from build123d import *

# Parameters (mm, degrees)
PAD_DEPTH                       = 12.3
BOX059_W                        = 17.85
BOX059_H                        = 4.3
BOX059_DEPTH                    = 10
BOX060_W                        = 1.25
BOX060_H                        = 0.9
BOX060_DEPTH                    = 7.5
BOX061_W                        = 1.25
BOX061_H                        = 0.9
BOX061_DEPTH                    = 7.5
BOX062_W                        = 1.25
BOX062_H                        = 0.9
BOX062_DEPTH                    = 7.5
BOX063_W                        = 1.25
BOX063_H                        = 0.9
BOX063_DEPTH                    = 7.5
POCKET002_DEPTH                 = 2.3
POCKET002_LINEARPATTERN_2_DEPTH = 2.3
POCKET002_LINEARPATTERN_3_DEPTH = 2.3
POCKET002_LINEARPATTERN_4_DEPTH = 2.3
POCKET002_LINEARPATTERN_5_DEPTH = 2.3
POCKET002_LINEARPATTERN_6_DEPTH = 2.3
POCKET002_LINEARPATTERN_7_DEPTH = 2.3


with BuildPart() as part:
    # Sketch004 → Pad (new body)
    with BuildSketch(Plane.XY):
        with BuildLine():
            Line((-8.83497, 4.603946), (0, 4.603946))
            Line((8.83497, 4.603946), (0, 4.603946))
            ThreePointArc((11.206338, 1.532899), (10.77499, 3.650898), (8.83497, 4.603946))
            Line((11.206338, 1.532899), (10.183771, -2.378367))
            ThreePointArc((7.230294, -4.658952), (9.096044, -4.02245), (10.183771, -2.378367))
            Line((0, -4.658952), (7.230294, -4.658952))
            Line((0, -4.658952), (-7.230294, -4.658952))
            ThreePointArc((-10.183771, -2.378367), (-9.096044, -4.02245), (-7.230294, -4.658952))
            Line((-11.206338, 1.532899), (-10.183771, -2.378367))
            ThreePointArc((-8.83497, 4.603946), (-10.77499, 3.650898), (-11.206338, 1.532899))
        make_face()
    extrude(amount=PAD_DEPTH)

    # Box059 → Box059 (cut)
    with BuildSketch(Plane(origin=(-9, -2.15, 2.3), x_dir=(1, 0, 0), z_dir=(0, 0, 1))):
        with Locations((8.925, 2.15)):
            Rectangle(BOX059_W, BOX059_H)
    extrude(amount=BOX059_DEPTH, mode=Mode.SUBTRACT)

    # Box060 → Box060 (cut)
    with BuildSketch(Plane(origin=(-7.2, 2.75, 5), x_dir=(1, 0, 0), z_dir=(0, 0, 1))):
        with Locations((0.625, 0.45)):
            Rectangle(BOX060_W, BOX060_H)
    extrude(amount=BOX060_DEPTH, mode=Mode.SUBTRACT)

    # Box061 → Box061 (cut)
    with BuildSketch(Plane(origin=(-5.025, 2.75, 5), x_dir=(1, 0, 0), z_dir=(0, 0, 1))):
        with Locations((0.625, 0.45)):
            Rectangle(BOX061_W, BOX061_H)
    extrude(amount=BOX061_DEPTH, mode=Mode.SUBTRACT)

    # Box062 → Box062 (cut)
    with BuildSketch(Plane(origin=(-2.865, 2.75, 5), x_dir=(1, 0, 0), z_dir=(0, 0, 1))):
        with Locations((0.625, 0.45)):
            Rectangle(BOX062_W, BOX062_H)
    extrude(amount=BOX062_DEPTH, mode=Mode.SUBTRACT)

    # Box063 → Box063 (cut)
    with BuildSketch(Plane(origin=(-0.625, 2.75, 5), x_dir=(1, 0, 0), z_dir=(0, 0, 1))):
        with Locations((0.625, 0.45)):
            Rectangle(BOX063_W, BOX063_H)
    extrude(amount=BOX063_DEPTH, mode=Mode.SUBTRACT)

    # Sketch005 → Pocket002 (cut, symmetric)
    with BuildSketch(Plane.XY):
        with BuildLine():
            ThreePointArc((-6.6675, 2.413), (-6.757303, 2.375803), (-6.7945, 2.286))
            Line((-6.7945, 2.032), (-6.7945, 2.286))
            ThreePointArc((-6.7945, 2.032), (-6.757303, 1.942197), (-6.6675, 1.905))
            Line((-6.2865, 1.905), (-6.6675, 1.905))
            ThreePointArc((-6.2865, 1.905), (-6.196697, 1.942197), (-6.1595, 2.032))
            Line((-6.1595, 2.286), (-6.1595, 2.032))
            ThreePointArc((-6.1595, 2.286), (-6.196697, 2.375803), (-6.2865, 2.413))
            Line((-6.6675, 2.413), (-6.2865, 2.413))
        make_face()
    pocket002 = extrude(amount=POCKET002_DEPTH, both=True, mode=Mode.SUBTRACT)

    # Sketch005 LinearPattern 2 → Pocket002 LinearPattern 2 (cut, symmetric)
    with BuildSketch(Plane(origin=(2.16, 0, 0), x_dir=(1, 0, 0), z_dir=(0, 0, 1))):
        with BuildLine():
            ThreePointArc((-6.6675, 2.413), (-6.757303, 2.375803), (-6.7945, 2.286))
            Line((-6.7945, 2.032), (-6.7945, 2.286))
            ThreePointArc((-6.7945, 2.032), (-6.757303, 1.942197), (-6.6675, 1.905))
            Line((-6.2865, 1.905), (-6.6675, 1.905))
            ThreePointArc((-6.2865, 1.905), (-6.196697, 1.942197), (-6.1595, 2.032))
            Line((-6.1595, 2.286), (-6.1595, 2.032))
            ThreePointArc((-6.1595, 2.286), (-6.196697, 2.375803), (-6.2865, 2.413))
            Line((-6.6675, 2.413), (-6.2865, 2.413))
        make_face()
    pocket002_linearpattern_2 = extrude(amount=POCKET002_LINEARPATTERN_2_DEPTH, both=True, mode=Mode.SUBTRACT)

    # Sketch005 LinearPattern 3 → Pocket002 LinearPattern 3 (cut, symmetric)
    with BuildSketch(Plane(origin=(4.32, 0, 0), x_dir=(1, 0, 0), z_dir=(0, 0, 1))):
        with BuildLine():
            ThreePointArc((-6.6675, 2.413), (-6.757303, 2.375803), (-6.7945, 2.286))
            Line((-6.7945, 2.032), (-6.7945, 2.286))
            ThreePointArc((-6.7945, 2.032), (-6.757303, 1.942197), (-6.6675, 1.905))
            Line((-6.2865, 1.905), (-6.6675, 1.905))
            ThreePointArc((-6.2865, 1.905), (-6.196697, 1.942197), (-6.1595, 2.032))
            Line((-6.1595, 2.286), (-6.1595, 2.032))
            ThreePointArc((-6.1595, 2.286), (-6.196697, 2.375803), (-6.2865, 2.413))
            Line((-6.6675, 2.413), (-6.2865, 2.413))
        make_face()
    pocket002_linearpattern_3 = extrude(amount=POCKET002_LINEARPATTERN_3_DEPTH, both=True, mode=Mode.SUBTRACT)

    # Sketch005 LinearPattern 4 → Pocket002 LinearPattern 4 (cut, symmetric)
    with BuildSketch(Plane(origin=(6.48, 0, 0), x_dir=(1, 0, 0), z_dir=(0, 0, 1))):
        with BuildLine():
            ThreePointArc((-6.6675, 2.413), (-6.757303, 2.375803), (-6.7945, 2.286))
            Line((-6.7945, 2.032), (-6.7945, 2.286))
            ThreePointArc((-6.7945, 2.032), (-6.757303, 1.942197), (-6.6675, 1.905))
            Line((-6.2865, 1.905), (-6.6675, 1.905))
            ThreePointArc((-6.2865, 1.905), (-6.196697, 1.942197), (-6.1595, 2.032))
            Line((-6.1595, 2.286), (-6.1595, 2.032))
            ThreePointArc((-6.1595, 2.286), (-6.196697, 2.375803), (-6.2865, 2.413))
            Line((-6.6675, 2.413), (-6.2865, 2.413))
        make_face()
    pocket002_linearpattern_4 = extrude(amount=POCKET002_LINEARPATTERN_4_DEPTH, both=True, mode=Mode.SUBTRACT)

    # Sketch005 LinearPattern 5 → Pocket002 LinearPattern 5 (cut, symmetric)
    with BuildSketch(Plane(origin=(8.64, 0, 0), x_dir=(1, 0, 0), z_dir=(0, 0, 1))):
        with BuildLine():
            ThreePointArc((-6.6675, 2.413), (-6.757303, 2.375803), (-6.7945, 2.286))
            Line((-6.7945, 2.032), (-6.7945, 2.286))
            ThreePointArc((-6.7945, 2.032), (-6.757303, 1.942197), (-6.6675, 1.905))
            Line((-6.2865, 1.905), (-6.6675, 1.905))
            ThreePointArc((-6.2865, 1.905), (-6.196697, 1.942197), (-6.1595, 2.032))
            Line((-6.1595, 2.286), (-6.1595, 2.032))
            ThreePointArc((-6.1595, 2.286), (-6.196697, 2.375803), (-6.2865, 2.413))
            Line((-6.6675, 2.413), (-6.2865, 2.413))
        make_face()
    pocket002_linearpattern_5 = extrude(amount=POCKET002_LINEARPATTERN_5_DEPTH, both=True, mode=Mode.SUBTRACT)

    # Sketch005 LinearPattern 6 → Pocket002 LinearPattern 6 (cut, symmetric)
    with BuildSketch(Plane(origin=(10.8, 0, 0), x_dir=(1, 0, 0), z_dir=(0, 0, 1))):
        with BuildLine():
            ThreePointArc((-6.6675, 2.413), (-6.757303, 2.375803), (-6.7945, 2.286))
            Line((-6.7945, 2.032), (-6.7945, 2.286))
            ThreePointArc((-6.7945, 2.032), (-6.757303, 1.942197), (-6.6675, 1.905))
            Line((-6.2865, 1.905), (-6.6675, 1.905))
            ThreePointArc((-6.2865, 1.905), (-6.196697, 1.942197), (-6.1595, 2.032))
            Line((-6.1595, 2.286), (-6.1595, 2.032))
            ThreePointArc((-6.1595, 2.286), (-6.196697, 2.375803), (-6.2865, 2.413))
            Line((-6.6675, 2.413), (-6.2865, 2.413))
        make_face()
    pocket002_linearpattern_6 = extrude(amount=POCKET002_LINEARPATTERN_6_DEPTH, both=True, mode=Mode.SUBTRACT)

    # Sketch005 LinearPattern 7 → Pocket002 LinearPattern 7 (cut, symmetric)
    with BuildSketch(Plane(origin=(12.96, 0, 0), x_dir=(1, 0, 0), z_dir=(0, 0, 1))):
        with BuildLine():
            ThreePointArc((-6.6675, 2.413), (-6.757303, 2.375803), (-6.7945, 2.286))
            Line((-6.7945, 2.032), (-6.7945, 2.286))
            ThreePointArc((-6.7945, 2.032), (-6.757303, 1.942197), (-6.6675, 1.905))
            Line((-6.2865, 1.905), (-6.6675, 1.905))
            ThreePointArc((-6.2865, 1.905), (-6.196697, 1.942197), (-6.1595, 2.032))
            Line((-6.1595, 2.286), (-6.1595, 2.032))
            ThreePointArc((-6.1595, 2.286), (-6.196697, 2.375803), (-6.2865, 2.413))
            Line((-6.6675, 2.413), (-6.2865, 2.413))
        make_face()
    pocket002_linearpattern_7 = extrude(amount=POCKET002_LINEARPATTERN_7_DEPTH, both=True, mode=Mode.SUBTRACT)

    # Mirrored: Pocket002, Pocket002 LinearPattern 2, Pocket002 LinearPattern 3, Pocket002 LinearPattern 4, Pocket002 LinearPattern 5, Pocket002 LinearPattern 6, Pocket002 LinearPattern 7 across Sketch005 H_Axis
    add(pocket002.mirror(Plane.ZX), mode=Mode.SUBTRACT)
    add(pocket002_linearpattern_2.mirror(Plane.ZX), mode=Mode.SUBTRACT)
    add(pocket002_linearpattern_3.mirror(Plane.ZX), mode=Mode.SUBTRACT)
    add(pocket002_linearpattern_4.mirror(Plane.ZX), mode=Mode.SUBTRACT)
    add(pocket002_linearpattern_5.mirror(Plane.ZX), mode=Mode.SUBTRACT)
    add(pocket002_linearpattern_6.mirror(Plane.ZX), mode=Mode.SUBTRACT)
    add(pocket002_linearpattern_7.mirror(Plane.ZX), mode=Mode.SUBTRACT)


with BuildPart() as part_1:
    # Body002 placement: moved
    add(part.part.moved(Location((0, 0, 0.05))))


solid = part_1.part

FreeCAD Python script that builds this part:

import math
import FreeCAD as App
import Part
import Sketcher


def add_polygon(sketch, points):
    """Adds a closed chain of lines whose ends are joined by coincident constraints."""
    first, n = sketch.GeometryCount, len(points)
    for a, b in zip(points, points[1:] + points[:1]):
        sketch.addGeometry(Part.LineSegment(App.Vector(*a, 0), App.Vector(*b, 0)), False)
    for i in range(n):
        sketch.addConstraint(Sketcher.Constraint("Coincident", first + i, 2, first + (i + 1) % n, 1))

doc = App.newDocument("Part")
body = doc.addObject("PartDesign::Body", "Body")

# Sketch on XY plane
sketch1 = body.newObject("Sketcher::SketchObject", "Sketch")
sketch1.AttachmentSupport = (doc.getObject("XY_Plane"), [""])
sketch1.MapMode = "FlatFace"
sketch1.addGeometry(Part.LineSegment(App.Vector(8.8, 4.6, 0), App.Vector(-8.8, 4.6, 0)), False)
sketch1.addGeometry(Part.ArcOfCircle(Part.Circle(App.Vector(-8.8, 2.2, 0), App.Vector(0, 0, 1), 2.5), math.radians(90), math.radians(195)), False)
sketch1.addGeometry(Part.LineSegment(App.Vector(-11.2, 1.5, 0), App.Vector(-10.2, -2.4, 0)), False)
sketch1.addGeometry(Part.ArcOfCircle(Part.Circle(App.Vector(-7.2, -1.6, 0), App.Vector(0, 0, 1), 3.1), math.radians(-165), math.radians(-90)), False)
sketch1.addGeometry(Part.LineSegment(App.Vector(-7.2, -4.7, 0), App.Vector(7.2, -4.7, 0)), False)
sketch1.addGeometry(Part.ArcOfCircle(Part.Circle(App.Vector(7.2, -1.6, 0), App.Vector(0, 0, 1), 3.1), math.radians(-90), math.radians(-15)), False)
sketch1.addGeometry(Part.LineSegment(App.Vector(10.2, -2.4, 0), App.Vector(11.2, 1.5, 0)), False)
sketch1.addGeometry(Part.ArcOfCircle(Part.Circle(App.Vector(8.8, 2.2, 0), App.Vector(0, 0, 1), 2.5), math.radians(-15), math.radians(90)), False)
sketch1.addConstraint(Sketcher.Constraint("Tangent", 0, 2, 1, 1))
sketch1.addConstraint(Sketcher.Constraint("Tangent", 1, 2, 2, 1))
sketch1.addConstraint(Sketcher.Constraint("Tangent", 2, 2, 3, 1))
sketch1.addConstraint(Sketcher.Constraint("Tangent", 3, 2, 4, 1))
sketch1.addConstraint(Sketcher.Constraint("Tangent", 4, 2, 5, 1))
sketch1.addConstraint(Sketcher.Constraint("Tangent", 5, 2, 6, 1))
sketch1.addConstraint(Sketcher.Constraint("Tangent", 6, 2, 7, 1))
sketch1.addConstraint(Sketcher.Constraint("Tangent", 7, 2, 0, 1))
sketch1.addConstraint(Sketcher.Constraint("Horizontal", 0))
sketch1.addConstraint(Sketcher.Constraint("Horizontal", 4))
sketch1.addConstraint(Sketcher.Constraint("Equal", 3, 5))
sketch1.addConstraint(Sketcher.Constraint("Equal", 1, 7))
sketch1.addConstraint(Sketcher.Constraint("Symmetric", 2, 2, 5, 2, -2))
sketch1.addConstraint(Sketcher.Constraint("Radius", 1, 2.451072))
sketch1.addConstraint(Sketcher.Constraint("Radius", 3, 3.052746))
sketch1.addConstraint(Sketcher.Constraint("DistanceX", 0, 2, 0, 1, 17.66994))
sketch1.addConstraint(Sketcher.Constraint("DistanceY", -1, 1, 1, 2, 1.532899))
sketch1.addConstraint(Sketcher.Constraint("DistanceX", 2, 2, 1, 3, 1.348801))
sketch1.addConstraint(Sketcher.Constraint("DistanceX", 4, 1, 4, 2, 14.460588))
pad1 = body.newObject("PartDesign::Pad", "Pad")
pad1.Profile = sketch1
pad1.Length = 12.3

# Sketch on XY plane
sketch2 = body.newObject("Sketcher::SketchObject", "Sketch001")
sketch2.AttachmentSupport = (doc.getObject("XY_Plane"), [""])
sketch2.MapMode = "FlatFace"
sketch2.AttachmentOffset = App.Placement(App.Vector(0, 0, 2.3), App.Rotation())
add_polygon(sketch2, [(-9, 2.1), (-9, -2.1), (8.8, -2.1), (8.8, 2.1)])  # lines 0-3
sketch2.addConstraint(Sketcher.Constraint("Vertical", 0))
sketch2.addConstraint(Sketcher.Constraint("Horizontal", 1))
sketch2.addConstraint(Sketcher.Constraint("Vertical", 2))
sketch2.addConstraint(Sketcher.Constraint("Horizontal", 3))
sketch2.addConstraint(Sketcher.Constraint("DistanceY", 0, 2, 0, 1, 4.3))
sketch2.addConstraint(Sketcher.Constraint("DistanceX", 0, 2, -1, 1, 9.0))
sketch2.addConstraint(Sketcher.Constraint("DistanceX", 1, 1, 1, 2, 17.85))
sketch2.addConstraint(Sketcher.Constraint("DistanceY", 0, 2, -1, 1, 2.15))
pocket1 = body.newObject("PartDesign::Pocket", "Pocket")
pocket1.Profile = sketch2
pocket1.Length = 10
pocket1.Reversed = True

# Sketch on XY plane
sketch3 = body.newObject("Sketcher::SketchObject", "Sketch002")
sketch3.AttachmentSupport = (doc.getObject("XY_Plane"), [""])
sketch3.MapMode = "FlatFace"
sketch3.AttachmentOffset = App.Placement(App.Vector(0, 0, 5), App.Rotation())
add_polygon(sketch3, [(-7.2, 3.6), (-7.2, 2.8), (-6, 2.8), (-6, 3.6)])  # lines 0-3
sketch3.addConstraint(Sketcher.Constraint("Vertical", 0))
sketch3.addConstraint(Sketcher.Constraint("Horizontal", 1))
sketch3.addConstraint(Sketcher.Constraint("Vertical", 2))
sketch3.addConstraint(Sketcher.Constraint("Horizontal", 3))
sketch3.addConstraint(Sketcher.Constraint("DistanceY", 0, 2, 0, 1, 0.9))
sketch3.addConstraint(Sketcher.Constraint("DistanceX", 1, 1, 1, 2, 1.25))
sketch3.addConstraint(Sketcher.Constraint("DistanceX", 0, 2, -1, 1, 7.2))
sketch3.addConstraint(Sketcher.Constraint("DistanceY", -1, 1, 0, 2, 2.75))
pocket2 = body.newObject("PartDesign::Pocket", "Pocket001")
pocket2.Profile = sketch3
pocket2.Length = 7.5
pocket2.Reversed = True

# Sketch on XY plane
sketch4 = body.newObject("Sketcher::SketchObject", "Sketch003")
sketch4.AttachmentSupport = (doc.getObject("XY_Plane"), [""])
sketch4.MapMode = "FlatFace"
sketch4.AttachmentOffset = App.Placement(App.Vector(0, 0, 5), App.Rotation())
add_polygon(sketch4, [(-5, 3.6), (-5, 2.8), (-3.8, 2.8), (-3.8, 3.6)])  # lines 0-3
sketch4.addConstraint(Sketcher.Constraint("Vertical", 0))
sketch4.addConstraint(Sketcher.Constraint("Horizontal", 1))
sketch4.addConstraint(Sketcher.Constraint("Vertical", 2))
sketch4.addConstraint(Sketcher.Constraint("Horizontal", 3))
sketch4.addConstraint(Sketcher.Constraint("DistanceY", 0, 2, 0, 1, 0.9))
sketch4.addConstraint(Sketcher.Constraint("DistanceX", 1, 1, 1, 2, 1.25))
sketch4.addConstraint(Sketcher.Constraint("DistanceY", -1, 1, 0, 2, 2.75))
sketch4.addConstraint(Sketcher.Constraint("DistanceX", 0, 2, -1, 1, 5.025))
pocket3 = body.newObject("PartDesign::Pocket", "Pocket002")
pocket3.Profile = sketch4
pocket3.Length = 7.5
pocket3.Reversed = True

# Sketch on XY plane
sketch5 = body.newObject("Sketcher::SketchObject", "Sketch004")
sketch5.AttachmentSupport = (doc.getObject("XY_Plane"), [""])
sketch5.MapMode = "FlatFace"
sketch5.AttachmentOffset = App.Placement(App.Vector(0, 0, 5), App.Rotation())
add_polygon(sketch5, [(-2.9, 3.6), (-2.9, 2.8), (-1.6, 2.8), (-1.6, 3.6)])  # lines 0-3
sketch5.addConstraint(Sketcher.Constraint("Vertical", 0))
sketch5.addConstraint(Sketcher.Constraint("Horizontal", 1))
sketch5.addConstraint(Sketcher.Constraint("Vertical", 2))
sketch5.addConstraint(Sketcher.Constraint("Horizontal", 3))
sketch5.addConstraint(Sketcher.Constraint("DistanceY", 0, 2, 0, 1, 0.9))
sketch5.addConstraint(Sketcher.Constraint("DistanceX", 1, 1, 1, 2, 1.25))
sketch5.addConstraint(Sketcher.Constraint("DistanceY", -1, 1, 0, 2, 2.75))
sketch5.addConstraint(Sketcher.Constraint("DistanceX", 0, 2, -1, 1, 2.865))
pocket4 = body.newObject("PartDesign::Pocket", "Pocket003")
pocket4.Profile = sketch5
pocket4.Length = 7.5
pocket4.Reversed = True

# Sketch on XY plane
sketch6 = body.newObject("Sketcher::SketchObject", "Sketch005")
sketch6.AttachmentSupport = (doc.getObject("XY_Plane"), [""])
sketch6.MapMode = "FlatFace"
sketch6.AttachmentOffset = App.Placement(App.Vector(0, 0, 5), App.Rotation())
add_polygon(sketch6, [(-0.6, 3.6), (-0.6, 2.8), (0.6, 2.8), (0.6, 3.6)])  # lines 0-3
sketch6.addConstraint(Sketcher.Constraint("Vertical", 0))
sketch6.addConstraint(Sketcher.Constraint("Horizontal", 1))
sketch6.addConstraint(Sketcher.Constraint("Vertical", 2))
sketch6.addConstraint(Sketcher.Constraint("Horizontal", 3))
sketch6.addConstraint(Sketcher.Constraint("DistanceY", 0, 2, 0, 1, 0.9))
sketch6.addConstraint(Sketcher.Constraint("DistanceX", 1, 1, 1, 2, 1.25))
sketch6.addConstraint(Sketcher.Constraint("DistanceY", -1, 1, 0, 2, 2.75))
sketch6.addConstraint(Sketcher.Constraint("DistanceX", 0, 2, -1, 1, 0.625))
pocket5 = body.newObject("PartDesign::Pocket", "Pocket004")
pocket5.Profile = sketch6
pocket5.Length = 7.5
pocket5.Reversed = True

# Sketch on XY plane
sketch7 = body.newObject("Sketcher::SketchObject", "Sketch006")
sketch7.AttachmentSupport = (doc.getObject("XY_Plane"), [""])
sketch7.MapMode = "FlatFace"
sketch7.addGeometry(Part.ArcOfCircle(Part.Circle(App.Vector(-6.67, 2.29, 0), App.Vector(0, 0, 1), 0.13), math.radians(90), math.radians(180)), False)
sketch7.addGeometry(Part.LineSegment(App.Vector(-6.79, 2.29, 0), App.Vector(-6.79, 2.03, 0)), False)
sketch7.addGeometry(Part.ArcOfCircle(Part.Circle(App.Vector(-6.67, 2.03, 0), App.Vector(0, 0, 1), 0.13), math.radians(180), math.radians(270)), False)
sketch7.addGeometry(Part.LineSegment(App.Vector(-6.67, 1.91, 0), App.Vector(-6.29, 1.91, 0)), False)
sketch7.addGeometry(Part.ArcOfCircle(Part.Circle(App.Vector(-6.29, 2.03, 0), App.Vector(0, 0, 1), 0.13), math.radians(-90), math.radians(0)), False)
sketch7.addGeometry(Part.LineSegment(App.Vector(-6.16, 2.03, 0), App.Vector(-6.16, 2.29, 0)), False)
sketch7.addGeometry(Part.ArcOfCircle(Part.Circle(App.Vector(-6.29, 2.29, 0), App.Vector(0, 0, 1), 0.13), math.radians(0), math.radians(90)), False)
sketch7.addGeometry(Part.LineSegment(App.Vector(-6.29, 2.41, 0), App.Vector(-6.67, 2.41, 0)), False)
sketch7.addConstraint(Sketcher.Constraint("Coincident", 0, 2, 1, 1))
sketch7.addConstraint(Sketcher.Constraint("Coincident", 1, 2, 2, 1))
sketch7.addConstraint(Sketcher.Constraint("Coincident", 2, 2, 3, 1))
sketch7.addConstraint(Sketcher.Constraint("Coincident", 3, 2, 4, 1))
sketch7.addConstraint(Sketcher.Constraint("Coincident", 4, 2, 5, 1))
sketch7.addConstraint(Sketcher.Constraint("Coincident", 5, 2, 6, 1))
sketch7.addConstraint(Sketcher.Constraint("Coincident", 6, 2, 7, 1))
sketch7.addConstraint(Sketcher.Constraint("Coincident", 7, 2, 0, 1))
sketch7.addConstraint(Sketcher.Constraint("Vertical", 1))
sketch7.addConstraint(Sketcher.Constraint("Horizontal", 3))
sketch7.addConstraint(Sketcher.Constraint("Vertical", 5))
sketch7.addConstraint(Sketcher.Constraint("Horizontal", 7))
sketch7.addConstraint(Sketcher.Constraint("Equal", 0, 2))
sketch7.addConstraint(Sketcher.Constraint("Equal", 2, 4))
sketch7.addConstraint(Sketcher.Constraint("Equal", 4, 6))
sketch7.addConstraint(Sketcher.Constraint("Horizontal", 6, 3, 0, 2))
sketch7.addConstraint(Sketcher.Constraint("Horizontal", 4, 3, 1, 2))
sketch7.addConstraint(Sketcher.Constraint("Horizontal", 1, 2, 4, 2))
sketch7.addConstraint(Sketcher.Constraint("Horizontal", 0, 2, 5, 2))
sketch7.addConstraint(Sketcher.Constraint("Vertical", 0, 3, 2, 2))
sketch7.addConstraint(Sketcher.Constraint("Vertical", 6, 3, 3, 2))
sketch7.addConstraint(Sketcher.Constraint("Vertical", 3, 2, 6, 2))
sketch7.addConstraint(Sketcher.Constraint("Vertical", 2, 2, 7, 2))
sketch7.addConstraint(Sketcher.Constraint("Radius", 0, 0.126999))
sketch7.addConstraint(Sketcher.Constraint("DistanceX", 3, 1, 3, 2, 0.381))
sketch7.addConstraint(Sketcher.Constraint("DistanceY", 1, 2, 1, 1, 0.254))
sketch7.addConstraint(Sketcher.Constraint("DistanceY", -1, 1, 0, 3, 2.286001))
sketch7.addConstraint(Sketcher.Constraint("DistanceX", 0, 3, -1, 1, 6.667501))
pocket6 = body.newObject("PartDesign::Pocket", "Pocket005")
pocket6.Profile = sketch7
pocket6.Length = 4.6
pocket6.Midplane = True

# Sketch on XY plane
sketch8 = body.newObject("Sketcher::SketchObject", "Sketch007")
sketch8.AttachmentSupport = (doc.getObject("XY_Plane"), [""])
sketch8.MapMode = "FlatFace"
sketch8.addGeometry(Part.ArcOfCircle(Part.Circle(App.Vector(-4.51, 2.29, 0), App.Vector(0, 0, 1), 0.13), math.radians(90), math.radians(180)), False)
sketch8.addGeometry(Part.LineSegment(App.Vector(-4.63, 2.29, 0), App.Vector(-4.63, 2.03, 0)), False)
sketch8.addGeometry(Part.ArcOfCircle(Part.Circle(App.Vector(-4.51, 2.03, 0), App.Vector(0, 0, 1), 0.13), math.radians(180), math.radians(270)), False)
sketch8.addGeometry(Part.LineSegment(App.Vector(-4.51, 1.91, 0), App.Vector(-4.13, 1.91, 0)), False)
sketch8.addGeometry(Part.ArcOfCircle(Part.Circle(App.Vector(-4.13, 2.03, 0), App.Vector(0, 0, 1), 0.13), math.radians(-90), math.radians(0)), False)
sketch8.addGeometry(Part.LineSegment(App.Vector(-4, 2.03, 0), App.Vector(-4, 2.29, 0)), False)
sketch8.addGeometry(Part.ArcOfCircle(Part.Circle(App.Vector(-4.13, 2.29, 0), App.Vector(0, 0, 1), 0.13), math.radians(0), math.radians(90)), False)
sketch8.addGeometry(Part.LineSegment(App.Vector(-4.13, 2.41, 0), App.Vector(-4.51, 2.41, 0)), False)
sketch8.addConstraint(Sketcher.Constraint("Coincident", 0, 2, 1, 1))
sketch8.addConstraint(Sketcher.Constraint("Coincident", 1, 2, 2, 1))
sketch8.addConstraint(Sketcher.Constraint("Coincident", 2, 2, 3, 1))
sketch8.addConstraint(Sketcher.Constraint("Coincident", 3, 2, 4, 1))
sketch8.addConstraint(Sketcher.Constraint("Coincident", 4, 2, 5, 1))
sketch8.addConstraint(Sketcher.Constraint("Coincident", 5, 2, 6, 1))
sketch8.addConstraint(Sketcher.Constraint("Coincident", 6, 2, 7, 1))
sketch8.addConstraint(Sketcher.Constraint("Coincident", 7, 2, 0, 1))
sketch8.addConstraint(Sketcher.Constraint("Vertical", 1))
sketch8.addConstraint(Sketcher.Constraint("Horizontal", 3))
sketch8.addConstraint(Sketcher.Constraint("Vertical", 5))
sketch8.addConstraint(Sketcher.Constraint("Horizontal", 7))
sketch8.addConstraint(Sketcher.Constraint("Equal", 0, 2))
sketch8.addConstraint(Sketcher.Constraint("Equal", 2, 4))
sketch8.addConstraint(Sketcher.Constraint("Equal", 4, 6))
sketch8.addConstraint(Sketcher.Constraint("Horizontal", 6, 3, 0, 2))
sketch8.addConstraint(Sketcher.Constraint("Horizontal", 4, 3, 1, 2))
sketch8.addConstraint(Sketcher.Constraint("Horizontal", 1, 2, 4, 2))
sketch8.addConstraint(Sketcher.Constraint("Horizontal", 0, 2, 5, 2))
sketch8.addConstraint(Sketcher.Constraint("Vertical", 0, 3, 2, 2))
sketch8.addConstraint(Sketcher.Constraint("Vertical", 6, 3, 3, 2))
sketch8.addConstraint(Sketcher.Constraint("Vertical", 3, 2, 6, 2))
sketch8.addConstraint(Sketcher.Constraint("Vertical", 2, 2, 7, 2))
sketch8.addConstraint(Sketcher.Constraint("Radius", 0, 0.126999))
sketch8.addConstraint(Sketcher.Constraint("DistanceX", 3, 1, 3, 2, 0.381))
sketch8.addConstraint(Sketcher.Constraint("DistanceY", 1, 2, 1, 1, 0.254))
sketch8.addConstraint(Sketcher.Constraint("DistanceY", -1, 1, 0, 3, 2.286001))
sketch8.addConstraint(Sketcher.Constraint("DistanceX", 0, 3, -1, 1, 4.507501))
pocket7 = body.newObject("PartDesign::Pocket", "Pocket006")
pocket7.Profile = sketch8
pocket7.Length = 4.6
pocket7.Midplane = True

# Sketch on XY plane
sketch9 = body.newObject("Sketcher::SketchObject", "Sketch008")
sketch9.AttachmentSupport = (doc.getObject("XY_Plane"), [""])
sketch9.MapMode = "FlatFace"
sketch9.addGeometry(Part.ArcOfCircle(Part.Circle(App.Vector(-2.35, 2.29, 0), App.Vector(0, 0, 1), 0.13), math.radians(90), math.radians(180)), False)
sketch9.addGeometry(Part.LineSegment(App.Vector(-2.47, 2.29, 0), App.Vector(-2.47, 2.03, 0)), False)
sketch9.addGeometry(Part.ArcOfCircle(Part.Circle(App.Vector(-2.35, 2.03, 0), App.Vector(0, 0, 1), 0.13), math.radians(180), math.radians(270)), False)
sketch9.addGeometry(Part.LineSegment(App.Vector(-2.35, 1.91, 0), App.Vector(-1.97, 1.91, 0)), False)
sketch9.addGeometry(Part.ArcOfCircle(Part.Circle(App.Vector(-1.97, 2.03, 0), App.Vector(0, 0, 1), 0.13), math.radians(-90), math.radians(0)), False)
sketch9.addGeometry(Part.LineSegment(App.Vector(-1.84, 2.03, 0), App.Vector(-1.84, 2.29, 0)), False)
sketch9.addGeometry(Part.ArcOfCircle(Part.Circle(App.Vector(-1.97, 2.29, 0), App.Vector(0, 0, 1), 0.13), math.radians(0), math.radians(90)), False)
sketch9.addGeometry(Part.LineSegment(App.Vector(-1.97, 2.41, 0), App.Vector(-2.35, 2.41, 0)), False)
sketch9.addConstraint(Sketcher.Constraint("Coincident", 0, 2, 1, 1))
sketch9.addConstraint(Sketcher.Constraint("Coincident", 1, 2, 2, 1))
sketch9.addConstraint(Sketcher.Constraint("Coincident", 2, 2, 3, 1))
sketch9.addConstraint(Sketcher.Constraint("Coincident", 3, 2, 4, 1))
sketch9.addConstraint(Sketcher.Constraint("Coincident", 4, 2, 5, 1))
sketch9.addConstraint(Sketcher.Constraint("Coincident", 5, 2, 6, 1))
sketch9.addConstraint(Sketcher.Constraint("Coincident", 6, 2, 7, 1))
sketch9.addConstraint(Sketcher.Constraint("Coincident", 7, 2, 0, 1))
sketch9.addConstraint(Sketcher.Constraint("Vertical", 1))
sketch9.addConstraint(Sketcher.Constraint("Horizontal", 3))
sketch9.addConstraint(Sketcher.Constraint("Vertical", 5))
sketch9.addConstraint(Sketcher.Constraint("Horizontal", 7))
sketch9.addConstraint(Sketcher.Constraint("Equal", 0, 2))
sketch9.addConstraint(Sketcher.Constraint("Equal", 2, 4))
sketch9.addConstraint(Sketcher.Constraint("Equal", 4, 6))
sketch9.addConstraint(Sketcher.Constraint("Horizontal", 6, 3, 0, 2))
sketch9.addConstraint(Sketcher.Constraint("Horizontal", 4, 3, 1, 2))
sketch9.addConstraint(Sketcher.Constraint("Horizontal", 1, 2, 4, 2))
sketch9.addConstraint(Sketcher.Constraint("Horizontal", 0, 2, 5, 2))
sketch9.addConstraint(Sketcher.Constraint("Vertical", 0, 3, 2, 2))
sketch9.addConstraint(Sketcher.Constraint("Vertical", 6, 3, 3, 2))
sketch9.addConstraint(Sketcher.Constraint("Vertical", 3, 2, 6, 2))
sketch9.addConstraint(Sketcher.Constraint("Vertical", 2, 2, 7, 2))
sketch9.addConstraint(Sketcher.Constraint("Radius", 0, 0.126999))
sketch9.addConstraint(Sketcher.Constraint("DistanceX", 3, 1, 3, 2, 0.381))
sketch9.addConstraint(Sketcher.Constraint("DistanceY", 1, 2, 1, 1, 0.254))
sketch9.addConstraint(Sketcher.Constraint("DistanceY", -1, 1, 0, 3, 2.286001))
sketch9.addConstraint(Sketcher.Constraint("DistanceX", 0, 3, -1, 1, 2.347501))
pocket8 = body.newObject("PartDesign::Pocket", "Pocket007")
pocket8.Profile = sketch9
pocket8.Length = 4.6
pocket8.Midplane = True

# Sketch on XY plane
sketch10 = body.newObject("Sketcher::SketchObject", "Sketch009")
sketch10.AttachmentSupport = (doc.getObject("XY_Plane"), [""])
sketch10.MapMode = "FlatFace"
sketch10.addGeometry(Part.ArcOfCircle(Part.Circle(App.Vector(-0.19, 2.29, 0), App.Vector(0, 0, 1), 0.13), math.radians(90), math.radians(180)), False)
sketch10.addGeometry(Part.LineSegment(App.Vector(-0.31, 2.29, 0), App.Vector(-0.31, 2.03, 0)), False)
sketch10.addGeometry(Part.ArcOfCircle(Part.Circle(App.Vector(-0.19, 2.03, 0), App.Vector(0, 0, 1), 0.13), math.radians(180), math.radians(270)), False)
sketch10.addGeometry(Part.LineSegment(App.Vector(-0.19, 1.91, 0), App.Vector(0.19, 1.91, 0)), False)
sketch10.addGeometry(Part.ArcOfCircle(Part.Circle(App.Vector(0.19, 2.03, 0), App.Vector(0, 0, 1), 0.13), math.radians(-90), math.radians(0)), False)
sketch10.addGeometry(Part.LineSegment(App.Vector(0.32, 2.03, 0), App.Vector(0.32, 2.29, 0)), False)
sketch10.addGeometry(Part.ArcOfCircle(Part.Circle(App.Vector(0.19, 2.29, 0), App.Vector(0, 0, 1), 0.13), math.radians(0), math.radians(90)), False)
sketch10.addGeometry(Part.LineSegment(App.Vector(0.19, 2.41, 0), App.Vector(-0.19, 2.41, 0)), False)
sketch10.addConstraint(Sketcher.Constraint("Coincident", 0, 2, 1, 1))
sketch10.addConstraint(Sketcher.Constraint("Coincident", 1, 2, 2, 1))
sketch10.addConstraint(Sketcher.Constraint("Coincident", 2, 2, 3, 1))
sketch10.addConstraint(Sketcher.Constraint("Coincident", 3, 2, 4, 1))
sketch10.addConstraint(Sketcher.Constraint("Coincident", 4, 2, 5, 1))
sketch10.addConstraint(Sketcher.Constraint("Coincident", 5, 2, 6, 1))
sketch10.addConstraint(Sketcher.Constraint("Coincident", 6, 2, 7, 1))
sketch10.addConstraint(Sketcher.Constraint("Coincident", 7, 2, 0, 1))
sketch10.addConstraint(Sketcher.Constraint("Vertical", 1))
sketch10.addConstraint(Sketcher.Constraint("Horizontal", 3))
sketch10.addConstraint(Sketcher.Constraint("Vertical", 5))
sketch10.addConstraint(Sketcher.Constraint("Horizontal", 7))
sketch10.addConstraint(Sketcher.Constraint("Equal", 0, 2))
sketch10.addConstraint(Sketcher.Constraint("Equal", 2, 4))
sketch10.addConstraint(Sketcher.Constraint("Equal", 4, 6))
sketch10.addConstraint(Sketcher.Constraint("Horizontal", 6, 3, 0, 2))
sketch10.addConstraint(Sketcher.Constraint("Horizontal", 4, 3, 1, 2))
sketch10.addConstraint(Sketcher.Constraint("Horizontal", 1, 2, 4, 2))
sketch10.addConstraint(Sketcher.Constraint("Horizontal", 0, 2, 5, 2))
sketch10.addConstraint(Sketcher.Constraint("Vertical", 0, 3, 2, 2))
sketch10.addConstraint(Sketcher.Constraint("Vertical", 6, 3, 3, 2))
sketch10.addConstraint(Sketcher.Constraint("Vertical", 3, 2, 6, 2))
sketch10.addConstraint(Sketcher.Constraint("Vertical", 2, 2, 7, 2))
sketch10.addConstraint(Sketcher.Constraint("Radius", 0, 0.126999))
sketch10.addConstraint(Sketcher.Constraint("DistanceX", 3, 1, 3, 2, 0.381))
sketch10.addConstraint(Sketcher.Constraint("DistanceY", 1, 2, 1, 1, 0.254))
sketch10.addConstraint(Sketcher.Constraint("DistanceY", -1, 1, 0, 3, 2.286001))
sketch10.addConstraint(Sketcher.Constraint("DistanceX", 0, 3, -1, 1, 0.187501))
pocket9 = body.newObject("PartDesign::Pocket", "Pocket008")
pocket9.Profile = sketch10
pocket9.Length = 4.6
pocket9.Midplane = True

# Sketch on XY plane
sketch11 = body.newObject("Sketcher::SketchObject", "Sketch010")
sketch11.AttachmentSupport = (doc.getObject("XY_Plane"), [""])
sketch11.MapMode = "FlatFace"
sketch11.addGeometry(Part.ArcOfCircle(Part.Circle(App.Vector(1.97, 2.29, 0), App.Vector(0, 0, 1), 0.13), math.radians(90), math.radians(180)), False)
sketch11.addGeometry(Part.LineSegment(App.Vector(1.85, 2.29, 0), App.Vector(1.85, 2.03, 0)), False)
sketch11.addGeometry(Part.ArcOfCircle(Part.Circle(App.Vector(1.97, 2.03, 0), App.Vector(0, 0, 1), 0.13), math.radians(180), math.radians(270)), False)
sketch11.addGeometry(Part.LineSegment(App.Vector(1.97, 1.91, 0), App.Vector(2.35, 1.91, 0)), False)
sketch11.addGeometry(Part.ArcOfCircle(Part.Circle(App.Vector(2.35, 2.03, 0), App.Vector(0, 0, 1), 0.13), math.radians(-90), math.radians(0)), False)
sketch11.addGeometry(Part.LineSegment(App.Vector(2.48, 2.03, 0), App.Vector(2.48, 2.29, 0)), False)
sketch11.addGeometry(Part.ArcOfCircle(Part.Circle(App.Vector(2.35, 2.29, 0), App.Vector(0, 0, 1), 0.13), math.radians(0), math.radians(90)), False)
sketch11.addGeometry(Part.LineSegment(App.Vector(2.35, 2.41, 0), App.Vector(1.97, 2.41, 0)), False)
sketch11.addConstraint(Sketcher.Constraint("Coincident", 0, 2, 1, 1))
sketch11.addConstraint(Sketcher.Constraint("Coincident", 1, 2, 2, 1))
sketch11.addConstraint(Sketcher.Constraint("Coincident", 2, 2, 3, 1))
sketch11.addConstraint(Sketcher.Constraint("Coincident", 3, 2, 4, 1))
sketch11.addConstraint(Sketcher.Constraint("Coincident", 4, 2, 5, 1))
sketch11.addConstraint(Sketcher.Constraint("Coincident", 5, 2, 6, 1))
sketch11.addConstraint(Sketcher.Constraint("Coincident", 6, 2, 7, 1))
sketch11.addConstraint(Sketcher.Constraint("Coincident", 7, 2, 0, 1))
sketch11.addConstraint(Sketcher.Constraint("Vertical", 1))
sketch11.addConstraint(Sketcher.Constraint("Horizontal", 3))
sketch11.addConstraint(Sketcher.Constraint("Vertical", 5))
sketch11.addConstraint(Sketcher.Constraint("Horizontal", 7))
sketch11.addConstraint(Sketcher.Constraint("Equal", 0, 2))
sketch11.addConstraint(Sketcher.Constraint("Equal", 2, 4))
sketch11.addConstraint(Sketcher.Constraint("Equal", 4, 6))
sketch11.addConstraint(Sketcher.Constraint("Horizontal", 6, 3, 0, 2))
sketch11.addConstraint(Sketcher.Constraint("Horizontal", 4, 3, 1, 2))
sketch11.addConstraint(Sketcher.Constraint("Horizontal", 1, 2, 4, 2))
sketch11.addConstraint(Sketcher.Constraint("Horizontal", 0, 2, 5, 2))
sketch11.addConstraint(Sketcher.Constraint("Vertical", 0, 3, 2, 2))
sketch11.addConstraint(Sketcher.Constraint("Vertical", 6, 3, 3, 2))
sketch11.addConstraint(Sketcher.Constraint("Vertical", 3, 2, 6, 2))
sketch11.addConstraint(Sketcher.Constraint("Vertical", 2, 2, 7, 2))
sketch11.addConstraint(Sketcher.Constraint("Radius", 0, 0.126999))
sketch11.addConstraint(Sketcher.Constraint("DistanceX", 3, 1, 3, 2, 0.381))
sketch11.addConstraint(Sketcher.Constraint("DistanceY", 1, 2, 1, 1, 0.254))
sketch11.addConstraint(Sketcher.Constraint("DistanceY", -1, 1, 0, 3, 2.286001))
sketch11.addConstraint(Sketcher.Constraint("DistanceX", -1, 1, 0, 3, 1.972499))
pocket10 = body.newObject("PartDesign::Pocket", "Pocket009")
pocket10.Profile = sketch11
pocket10.Length = 4.6
pocket10.Midplane = True

# Sketch on XY plane
sketch12 = body.newObject("Sketcher::SketchObject", "Sketch011")
sketch12.AttachmentSupport = (doc.getObject("XY_Plane"), [""])
sketch12.MapMode = "FlatFace"
sketch12.addGeometry(Part.ArcOfCircle(Part.Circle(App.Vector(4.13, 2.29, 0), App.Vector(0, 0, 1), 0.13), math.radians(90), math.radians(180)), False)
sketch12.addGeometry(Part.LineSegment(App.Vector(4.01, 2.29, 0), App.Vector(4.01, 2.03, 0)), False)
sketch12.addGeometry(Part.ArcOfCircle(Part.Circle(App.Vector(4.13, 2.03, 0), App.Vector(0, 0, 1), 0.13), math.radians(180), math.radians(270)), False)
sketch12.addGeometry(Part.LineSegment(App.Vector(4.13, 1.91, 0), App.Vector(4.51, 1.91, 0)), False)
sketch12.addGeometry(Part.ArcOfCircle(Part.Circle(App.Vector(4.51, 2.03, 0), App.Vector(0, 0, 1), 0.13), math.radians(-90), math.radians(0)), False)
sketch12.addGeometry(Part.LineSegment(App.Vector(4.64, 2.03, 0), App.Vector(4.64, 2.29, 0)), False)
sketch12.addGeometry(Part.ArcOfCircle(Part.Circle(App.Vector(4.51, 2.29, 0), App.Vector(0, 0, 1), 0.13), math.radians(0), math.radians(90)), False)
sketch12.addGeometry(Part.LineSegment(App.Vector(4.51, 2.41, 0), App.Vector(4.13, 2.41, 0)), False)
sketch12.addConstraint(Sketcher.Constraint("Coincident", 0, 2, 1, 1))
sketch12.addConstraint(Sketcher.Constraint("Coincident", 1, 2, 2, 1))
sketch12.addConstraint(Sketcher.Constraint("Coincident", 2, 2, 3, 1))
sketch12.addConstraint(Sketcher.Constraint("Coincident", 3, 2, 4, 1))
sketch12.addConstraint(Sketcher.Constraint("Coincident", 4, 2, 5, 1))
sketch12.addConstraint(Sketcher.Constraint("Coincident", 5, 2, 6, 1))
sketch12.addConstraint(Sketcher.Constraint("Coincident", 6, 2, 7, 1))
sketch12.addConstraint(Sketcher.Constraint("Coincident", 7, 2, 0, 1))
sketch12.addConstraint(Sketcher.Constraint("Vertical", 1))
sketch12.addConstraint(Sketcher.Constraint("Horizontal", 3))
sketch12.addConstraint(Sketcher.Constraint("Vertical", 5))
sketch12.addConstraint(Sketcher.Constraint("Horizontal", 7))
sketch12.addConstraint(Sketcher.Constraint("Equal", 0, 2))
sketch12.addConstraint(Sketcher.Constraint("Equal", 2, 4))
sketch12.addConstraint(Sketcher.Constraint("Equal", 4, 6))
sketch12.addConstraint(Sketcher.Constraint("Horizontal", 6, 3, 0, 2))
sketch12.addConstraint(Sketcher.Constraint("Horizontal", 4, 3, 1, 2))
sketch12.addConstraint(Sketcher.Constraint("Horizontal", 1, 2, 4, 2))
sketch12.addConstraint(Sketcher.Constraint("Horizontal", 0, 2, 5, 2))
sketch12.addConstraint(Sketcher.Constraint("Vertical", 0, 3, 2, 2))
sketch12.addConstraint(Sketcher.Constraint("Vertical", 6, 3, 3, 2))
sketch12.addConstraint(Sketcher.Constraint("Vertical", 3, 2, 6, 2))
sketch12.addConstraint(Sketcher.Constraint("Vertical", 2, 2, 7, 2))
sketch12.addConstraint(Sketcher.Constraint("Radius", 0, 0.126999))
sketch12.addConstraint(Sketcher.Constraint("DistanceX", 3, 1, 3, 2, 0.381))
sketch12.addConstraint(Sketcher.Constraint("DistanceY", 1, 2, 1, 1, 0.254))
sketch12.addConstraint(Sketcher.Constraint("DistanceY", -1, 1, 0, 3, 2.286001))
sketch12.addConstraint(Sketcher.Constraint("DistanceX", -1, 1, 0, 3, 4.132499))
pocket11 = body.newObject("PartDesign::Pocket", "Pocket010")
pocket11.Profile = sketch12
pocket11.Length = 4.6
pocket11.Midplane = True

# Sketch on XY plane
sketch13 = body.newObject("Sketcher::SketchObject", "Sketch012")
sketch13.AttachmentSupport = (doc.getObject("XY_Plane"), [""])
sketch13.MapMode = "FlatFace"
sketch13.addGeometry(Part.ArcOfCircle(Part.Circle(App.Vector(6.29, 2.29, 0), App.Vector(0, 0, 1), 0.13), math.radians(90), math.radians(180)), False)
sketch13.addGeometry(Part.LineSegment(App.Vector(6.17, 2.29, 0), App.Vector(6.17, 2.03, 0)), False)
sketch13.addGeometry(Part.ArcOfCircle(Part.Circle(App.Vector(6.29, 2.03, 0), App.Vector(0, 0, 1), 0.13), math.radians(180), math.radians(270)), False)
sketch13.addGeometry(Part.LineSegment(App.Vector(6.29, 1.91, 0), App.Vector(6.67, 1.91, 0)), False)
sketch13.addGeometry(Part.ArcOfCircle(Part.Circle(App.Vector(6.67, 2.03, 0), App.Vector(0, 0, 1), 0.13), math.radians(-90), math.radians(0)), False)
sketch13.addGeometry(Part.LineSegment(App.Vector(6.8, 2.03, 0), App.Vector(6.8, 2.29, 0)), False)
sketch13.addGeometry(Part.ArcOfCircle(Part.Circle(App.Vector(6.67, 2.29, 0), App.Vector(0, 0, 1), 0.13), math.radians(0), math.radians(90)), False)
sketch13.addGeometry(Part.LineSegment(App.Vector(6.67, 2.41, 0), App.Vector(6.29, 2.41, 0)), False)
sketch13.addConstraint(Sketcher.Constraint("Coincident", 0, 2, 1, 1))
sketch13.addConstraint(Sketcher.Constraint("Coincident", 1, 2, 2, 1))
sketch13.addConstraint(Sketcher.Constraint("Coincident", 2, 2, 3, 1))
sketch13.addConstraint(Sketcher.Constraint("Coincident", 3, 2, 4, 1))
sketch13.addConstraint(Sketcher.Constraint("Coincident", 4, 2, 5, 1))
sketch13.addConstraint(Sketcher.Constraint("Coincident", 5, 2, 6, 1))
sketch13.addConstraint(Sketcher.Constraint("Coincident", 6, 2, 7, 1))
sketch13.addConstraint(Sketcher.Constraint("Coincident", 7, 2, 0, 1))
sketch13.addConstraint(Sketcher.Constraint("Vertical", 1))
sketch13.addConstraint(Sketcher.Constraint("Horizontal", 3))
sketch13.addConstraint(Sketcher.Constraint("Vertical", 5))
sketch13.addConstraint(Sketcher.Constraint("Horizontal", 7))
sketch13.addConstraint(Sketcher.Constraint("Equal", 0, 2))
sketch13.addConstraint(Sketcher.Constraint("Equal", 2, 4))
sketch13.addConstraint(Sketcher.Constraint("Equal", 4, 6))
sketch13.addConstraint(Sketcher.Constraint("Horizontal", 6, 3, 0, 2))
sketch13.addConstraint(Sketcher.Constraint("Horizontal", 4, 3, 1, 2))
sketch13.addConstraint(Sketcher.Constraint("Horizontal", 1, 2, 4, 2))
sketch13.addConstraint(Sketcher.Constraint("Horizontal", 0, 2, 5, 2))
sketch13.addConstraint(Sketcher.Constraint("Vertical", 0, 3, 2, 2))
sketch13.addConstraint(Sketcher.Constraint("Vertical", 6, 3, 3, 2))
sketch13.addConstraint(Sketcher.Constraint("Vertical", 3, 2, 6, 2))
sketch13.addConstraint(Sketcher.Constraint("Vertical", 2, 2, 7, 2))
sketch13.addConstraint(Sketcher.Constraint("Radius", 0, 0.126999))
sketch13.addConstraint(Sketcher.Constraint("DistanceX", 3, 1, 3, 2, 0.381))
sketch13.addConstraint(Sketcher.Constraint("DistanceY", 1, 2, 1, 1, 0.254))
sketch13.addConstraint(Sketcher.Constraint("DistanceY", -1, 1, 0, 3, 2.286001))
sketch13.addConstraint(Sketcher.Constraint("DistanceX", -1, 1, 0, 3, 6.292499))
pocket12 = body.newObject("PartDesign::Pocket", "Pocket011")
pocket12.Profile = sketch13
pocket12.Length = 4.6
pocket12.Midplane = True
doc.recompute()

mirrored = body.newObject("PartDesign::Mirrored", "Mirrored")
mirrored.Originals = [pocket6, pocket7, pocket8, pocket9, pocket10, pocket11, pocket12]
mirrored.MirrorPlane = (doc.getObject("XZ_Plane"), [""])
body.Tip = mirrored
body2 = doc.addObject("PartDesign::Body", "Body001")
doc.recompute()

body.Placement = App.Placement(App.Vector(0, 0, 0.05), App.Rotation(App.Vector(0, 0, 1), 0))
boolean = body2.newObject("PartDesign::Boolean", "Boolean")
boolean.Type = "Fuse"
boolean.addObjects([body])

doc.recompute()
